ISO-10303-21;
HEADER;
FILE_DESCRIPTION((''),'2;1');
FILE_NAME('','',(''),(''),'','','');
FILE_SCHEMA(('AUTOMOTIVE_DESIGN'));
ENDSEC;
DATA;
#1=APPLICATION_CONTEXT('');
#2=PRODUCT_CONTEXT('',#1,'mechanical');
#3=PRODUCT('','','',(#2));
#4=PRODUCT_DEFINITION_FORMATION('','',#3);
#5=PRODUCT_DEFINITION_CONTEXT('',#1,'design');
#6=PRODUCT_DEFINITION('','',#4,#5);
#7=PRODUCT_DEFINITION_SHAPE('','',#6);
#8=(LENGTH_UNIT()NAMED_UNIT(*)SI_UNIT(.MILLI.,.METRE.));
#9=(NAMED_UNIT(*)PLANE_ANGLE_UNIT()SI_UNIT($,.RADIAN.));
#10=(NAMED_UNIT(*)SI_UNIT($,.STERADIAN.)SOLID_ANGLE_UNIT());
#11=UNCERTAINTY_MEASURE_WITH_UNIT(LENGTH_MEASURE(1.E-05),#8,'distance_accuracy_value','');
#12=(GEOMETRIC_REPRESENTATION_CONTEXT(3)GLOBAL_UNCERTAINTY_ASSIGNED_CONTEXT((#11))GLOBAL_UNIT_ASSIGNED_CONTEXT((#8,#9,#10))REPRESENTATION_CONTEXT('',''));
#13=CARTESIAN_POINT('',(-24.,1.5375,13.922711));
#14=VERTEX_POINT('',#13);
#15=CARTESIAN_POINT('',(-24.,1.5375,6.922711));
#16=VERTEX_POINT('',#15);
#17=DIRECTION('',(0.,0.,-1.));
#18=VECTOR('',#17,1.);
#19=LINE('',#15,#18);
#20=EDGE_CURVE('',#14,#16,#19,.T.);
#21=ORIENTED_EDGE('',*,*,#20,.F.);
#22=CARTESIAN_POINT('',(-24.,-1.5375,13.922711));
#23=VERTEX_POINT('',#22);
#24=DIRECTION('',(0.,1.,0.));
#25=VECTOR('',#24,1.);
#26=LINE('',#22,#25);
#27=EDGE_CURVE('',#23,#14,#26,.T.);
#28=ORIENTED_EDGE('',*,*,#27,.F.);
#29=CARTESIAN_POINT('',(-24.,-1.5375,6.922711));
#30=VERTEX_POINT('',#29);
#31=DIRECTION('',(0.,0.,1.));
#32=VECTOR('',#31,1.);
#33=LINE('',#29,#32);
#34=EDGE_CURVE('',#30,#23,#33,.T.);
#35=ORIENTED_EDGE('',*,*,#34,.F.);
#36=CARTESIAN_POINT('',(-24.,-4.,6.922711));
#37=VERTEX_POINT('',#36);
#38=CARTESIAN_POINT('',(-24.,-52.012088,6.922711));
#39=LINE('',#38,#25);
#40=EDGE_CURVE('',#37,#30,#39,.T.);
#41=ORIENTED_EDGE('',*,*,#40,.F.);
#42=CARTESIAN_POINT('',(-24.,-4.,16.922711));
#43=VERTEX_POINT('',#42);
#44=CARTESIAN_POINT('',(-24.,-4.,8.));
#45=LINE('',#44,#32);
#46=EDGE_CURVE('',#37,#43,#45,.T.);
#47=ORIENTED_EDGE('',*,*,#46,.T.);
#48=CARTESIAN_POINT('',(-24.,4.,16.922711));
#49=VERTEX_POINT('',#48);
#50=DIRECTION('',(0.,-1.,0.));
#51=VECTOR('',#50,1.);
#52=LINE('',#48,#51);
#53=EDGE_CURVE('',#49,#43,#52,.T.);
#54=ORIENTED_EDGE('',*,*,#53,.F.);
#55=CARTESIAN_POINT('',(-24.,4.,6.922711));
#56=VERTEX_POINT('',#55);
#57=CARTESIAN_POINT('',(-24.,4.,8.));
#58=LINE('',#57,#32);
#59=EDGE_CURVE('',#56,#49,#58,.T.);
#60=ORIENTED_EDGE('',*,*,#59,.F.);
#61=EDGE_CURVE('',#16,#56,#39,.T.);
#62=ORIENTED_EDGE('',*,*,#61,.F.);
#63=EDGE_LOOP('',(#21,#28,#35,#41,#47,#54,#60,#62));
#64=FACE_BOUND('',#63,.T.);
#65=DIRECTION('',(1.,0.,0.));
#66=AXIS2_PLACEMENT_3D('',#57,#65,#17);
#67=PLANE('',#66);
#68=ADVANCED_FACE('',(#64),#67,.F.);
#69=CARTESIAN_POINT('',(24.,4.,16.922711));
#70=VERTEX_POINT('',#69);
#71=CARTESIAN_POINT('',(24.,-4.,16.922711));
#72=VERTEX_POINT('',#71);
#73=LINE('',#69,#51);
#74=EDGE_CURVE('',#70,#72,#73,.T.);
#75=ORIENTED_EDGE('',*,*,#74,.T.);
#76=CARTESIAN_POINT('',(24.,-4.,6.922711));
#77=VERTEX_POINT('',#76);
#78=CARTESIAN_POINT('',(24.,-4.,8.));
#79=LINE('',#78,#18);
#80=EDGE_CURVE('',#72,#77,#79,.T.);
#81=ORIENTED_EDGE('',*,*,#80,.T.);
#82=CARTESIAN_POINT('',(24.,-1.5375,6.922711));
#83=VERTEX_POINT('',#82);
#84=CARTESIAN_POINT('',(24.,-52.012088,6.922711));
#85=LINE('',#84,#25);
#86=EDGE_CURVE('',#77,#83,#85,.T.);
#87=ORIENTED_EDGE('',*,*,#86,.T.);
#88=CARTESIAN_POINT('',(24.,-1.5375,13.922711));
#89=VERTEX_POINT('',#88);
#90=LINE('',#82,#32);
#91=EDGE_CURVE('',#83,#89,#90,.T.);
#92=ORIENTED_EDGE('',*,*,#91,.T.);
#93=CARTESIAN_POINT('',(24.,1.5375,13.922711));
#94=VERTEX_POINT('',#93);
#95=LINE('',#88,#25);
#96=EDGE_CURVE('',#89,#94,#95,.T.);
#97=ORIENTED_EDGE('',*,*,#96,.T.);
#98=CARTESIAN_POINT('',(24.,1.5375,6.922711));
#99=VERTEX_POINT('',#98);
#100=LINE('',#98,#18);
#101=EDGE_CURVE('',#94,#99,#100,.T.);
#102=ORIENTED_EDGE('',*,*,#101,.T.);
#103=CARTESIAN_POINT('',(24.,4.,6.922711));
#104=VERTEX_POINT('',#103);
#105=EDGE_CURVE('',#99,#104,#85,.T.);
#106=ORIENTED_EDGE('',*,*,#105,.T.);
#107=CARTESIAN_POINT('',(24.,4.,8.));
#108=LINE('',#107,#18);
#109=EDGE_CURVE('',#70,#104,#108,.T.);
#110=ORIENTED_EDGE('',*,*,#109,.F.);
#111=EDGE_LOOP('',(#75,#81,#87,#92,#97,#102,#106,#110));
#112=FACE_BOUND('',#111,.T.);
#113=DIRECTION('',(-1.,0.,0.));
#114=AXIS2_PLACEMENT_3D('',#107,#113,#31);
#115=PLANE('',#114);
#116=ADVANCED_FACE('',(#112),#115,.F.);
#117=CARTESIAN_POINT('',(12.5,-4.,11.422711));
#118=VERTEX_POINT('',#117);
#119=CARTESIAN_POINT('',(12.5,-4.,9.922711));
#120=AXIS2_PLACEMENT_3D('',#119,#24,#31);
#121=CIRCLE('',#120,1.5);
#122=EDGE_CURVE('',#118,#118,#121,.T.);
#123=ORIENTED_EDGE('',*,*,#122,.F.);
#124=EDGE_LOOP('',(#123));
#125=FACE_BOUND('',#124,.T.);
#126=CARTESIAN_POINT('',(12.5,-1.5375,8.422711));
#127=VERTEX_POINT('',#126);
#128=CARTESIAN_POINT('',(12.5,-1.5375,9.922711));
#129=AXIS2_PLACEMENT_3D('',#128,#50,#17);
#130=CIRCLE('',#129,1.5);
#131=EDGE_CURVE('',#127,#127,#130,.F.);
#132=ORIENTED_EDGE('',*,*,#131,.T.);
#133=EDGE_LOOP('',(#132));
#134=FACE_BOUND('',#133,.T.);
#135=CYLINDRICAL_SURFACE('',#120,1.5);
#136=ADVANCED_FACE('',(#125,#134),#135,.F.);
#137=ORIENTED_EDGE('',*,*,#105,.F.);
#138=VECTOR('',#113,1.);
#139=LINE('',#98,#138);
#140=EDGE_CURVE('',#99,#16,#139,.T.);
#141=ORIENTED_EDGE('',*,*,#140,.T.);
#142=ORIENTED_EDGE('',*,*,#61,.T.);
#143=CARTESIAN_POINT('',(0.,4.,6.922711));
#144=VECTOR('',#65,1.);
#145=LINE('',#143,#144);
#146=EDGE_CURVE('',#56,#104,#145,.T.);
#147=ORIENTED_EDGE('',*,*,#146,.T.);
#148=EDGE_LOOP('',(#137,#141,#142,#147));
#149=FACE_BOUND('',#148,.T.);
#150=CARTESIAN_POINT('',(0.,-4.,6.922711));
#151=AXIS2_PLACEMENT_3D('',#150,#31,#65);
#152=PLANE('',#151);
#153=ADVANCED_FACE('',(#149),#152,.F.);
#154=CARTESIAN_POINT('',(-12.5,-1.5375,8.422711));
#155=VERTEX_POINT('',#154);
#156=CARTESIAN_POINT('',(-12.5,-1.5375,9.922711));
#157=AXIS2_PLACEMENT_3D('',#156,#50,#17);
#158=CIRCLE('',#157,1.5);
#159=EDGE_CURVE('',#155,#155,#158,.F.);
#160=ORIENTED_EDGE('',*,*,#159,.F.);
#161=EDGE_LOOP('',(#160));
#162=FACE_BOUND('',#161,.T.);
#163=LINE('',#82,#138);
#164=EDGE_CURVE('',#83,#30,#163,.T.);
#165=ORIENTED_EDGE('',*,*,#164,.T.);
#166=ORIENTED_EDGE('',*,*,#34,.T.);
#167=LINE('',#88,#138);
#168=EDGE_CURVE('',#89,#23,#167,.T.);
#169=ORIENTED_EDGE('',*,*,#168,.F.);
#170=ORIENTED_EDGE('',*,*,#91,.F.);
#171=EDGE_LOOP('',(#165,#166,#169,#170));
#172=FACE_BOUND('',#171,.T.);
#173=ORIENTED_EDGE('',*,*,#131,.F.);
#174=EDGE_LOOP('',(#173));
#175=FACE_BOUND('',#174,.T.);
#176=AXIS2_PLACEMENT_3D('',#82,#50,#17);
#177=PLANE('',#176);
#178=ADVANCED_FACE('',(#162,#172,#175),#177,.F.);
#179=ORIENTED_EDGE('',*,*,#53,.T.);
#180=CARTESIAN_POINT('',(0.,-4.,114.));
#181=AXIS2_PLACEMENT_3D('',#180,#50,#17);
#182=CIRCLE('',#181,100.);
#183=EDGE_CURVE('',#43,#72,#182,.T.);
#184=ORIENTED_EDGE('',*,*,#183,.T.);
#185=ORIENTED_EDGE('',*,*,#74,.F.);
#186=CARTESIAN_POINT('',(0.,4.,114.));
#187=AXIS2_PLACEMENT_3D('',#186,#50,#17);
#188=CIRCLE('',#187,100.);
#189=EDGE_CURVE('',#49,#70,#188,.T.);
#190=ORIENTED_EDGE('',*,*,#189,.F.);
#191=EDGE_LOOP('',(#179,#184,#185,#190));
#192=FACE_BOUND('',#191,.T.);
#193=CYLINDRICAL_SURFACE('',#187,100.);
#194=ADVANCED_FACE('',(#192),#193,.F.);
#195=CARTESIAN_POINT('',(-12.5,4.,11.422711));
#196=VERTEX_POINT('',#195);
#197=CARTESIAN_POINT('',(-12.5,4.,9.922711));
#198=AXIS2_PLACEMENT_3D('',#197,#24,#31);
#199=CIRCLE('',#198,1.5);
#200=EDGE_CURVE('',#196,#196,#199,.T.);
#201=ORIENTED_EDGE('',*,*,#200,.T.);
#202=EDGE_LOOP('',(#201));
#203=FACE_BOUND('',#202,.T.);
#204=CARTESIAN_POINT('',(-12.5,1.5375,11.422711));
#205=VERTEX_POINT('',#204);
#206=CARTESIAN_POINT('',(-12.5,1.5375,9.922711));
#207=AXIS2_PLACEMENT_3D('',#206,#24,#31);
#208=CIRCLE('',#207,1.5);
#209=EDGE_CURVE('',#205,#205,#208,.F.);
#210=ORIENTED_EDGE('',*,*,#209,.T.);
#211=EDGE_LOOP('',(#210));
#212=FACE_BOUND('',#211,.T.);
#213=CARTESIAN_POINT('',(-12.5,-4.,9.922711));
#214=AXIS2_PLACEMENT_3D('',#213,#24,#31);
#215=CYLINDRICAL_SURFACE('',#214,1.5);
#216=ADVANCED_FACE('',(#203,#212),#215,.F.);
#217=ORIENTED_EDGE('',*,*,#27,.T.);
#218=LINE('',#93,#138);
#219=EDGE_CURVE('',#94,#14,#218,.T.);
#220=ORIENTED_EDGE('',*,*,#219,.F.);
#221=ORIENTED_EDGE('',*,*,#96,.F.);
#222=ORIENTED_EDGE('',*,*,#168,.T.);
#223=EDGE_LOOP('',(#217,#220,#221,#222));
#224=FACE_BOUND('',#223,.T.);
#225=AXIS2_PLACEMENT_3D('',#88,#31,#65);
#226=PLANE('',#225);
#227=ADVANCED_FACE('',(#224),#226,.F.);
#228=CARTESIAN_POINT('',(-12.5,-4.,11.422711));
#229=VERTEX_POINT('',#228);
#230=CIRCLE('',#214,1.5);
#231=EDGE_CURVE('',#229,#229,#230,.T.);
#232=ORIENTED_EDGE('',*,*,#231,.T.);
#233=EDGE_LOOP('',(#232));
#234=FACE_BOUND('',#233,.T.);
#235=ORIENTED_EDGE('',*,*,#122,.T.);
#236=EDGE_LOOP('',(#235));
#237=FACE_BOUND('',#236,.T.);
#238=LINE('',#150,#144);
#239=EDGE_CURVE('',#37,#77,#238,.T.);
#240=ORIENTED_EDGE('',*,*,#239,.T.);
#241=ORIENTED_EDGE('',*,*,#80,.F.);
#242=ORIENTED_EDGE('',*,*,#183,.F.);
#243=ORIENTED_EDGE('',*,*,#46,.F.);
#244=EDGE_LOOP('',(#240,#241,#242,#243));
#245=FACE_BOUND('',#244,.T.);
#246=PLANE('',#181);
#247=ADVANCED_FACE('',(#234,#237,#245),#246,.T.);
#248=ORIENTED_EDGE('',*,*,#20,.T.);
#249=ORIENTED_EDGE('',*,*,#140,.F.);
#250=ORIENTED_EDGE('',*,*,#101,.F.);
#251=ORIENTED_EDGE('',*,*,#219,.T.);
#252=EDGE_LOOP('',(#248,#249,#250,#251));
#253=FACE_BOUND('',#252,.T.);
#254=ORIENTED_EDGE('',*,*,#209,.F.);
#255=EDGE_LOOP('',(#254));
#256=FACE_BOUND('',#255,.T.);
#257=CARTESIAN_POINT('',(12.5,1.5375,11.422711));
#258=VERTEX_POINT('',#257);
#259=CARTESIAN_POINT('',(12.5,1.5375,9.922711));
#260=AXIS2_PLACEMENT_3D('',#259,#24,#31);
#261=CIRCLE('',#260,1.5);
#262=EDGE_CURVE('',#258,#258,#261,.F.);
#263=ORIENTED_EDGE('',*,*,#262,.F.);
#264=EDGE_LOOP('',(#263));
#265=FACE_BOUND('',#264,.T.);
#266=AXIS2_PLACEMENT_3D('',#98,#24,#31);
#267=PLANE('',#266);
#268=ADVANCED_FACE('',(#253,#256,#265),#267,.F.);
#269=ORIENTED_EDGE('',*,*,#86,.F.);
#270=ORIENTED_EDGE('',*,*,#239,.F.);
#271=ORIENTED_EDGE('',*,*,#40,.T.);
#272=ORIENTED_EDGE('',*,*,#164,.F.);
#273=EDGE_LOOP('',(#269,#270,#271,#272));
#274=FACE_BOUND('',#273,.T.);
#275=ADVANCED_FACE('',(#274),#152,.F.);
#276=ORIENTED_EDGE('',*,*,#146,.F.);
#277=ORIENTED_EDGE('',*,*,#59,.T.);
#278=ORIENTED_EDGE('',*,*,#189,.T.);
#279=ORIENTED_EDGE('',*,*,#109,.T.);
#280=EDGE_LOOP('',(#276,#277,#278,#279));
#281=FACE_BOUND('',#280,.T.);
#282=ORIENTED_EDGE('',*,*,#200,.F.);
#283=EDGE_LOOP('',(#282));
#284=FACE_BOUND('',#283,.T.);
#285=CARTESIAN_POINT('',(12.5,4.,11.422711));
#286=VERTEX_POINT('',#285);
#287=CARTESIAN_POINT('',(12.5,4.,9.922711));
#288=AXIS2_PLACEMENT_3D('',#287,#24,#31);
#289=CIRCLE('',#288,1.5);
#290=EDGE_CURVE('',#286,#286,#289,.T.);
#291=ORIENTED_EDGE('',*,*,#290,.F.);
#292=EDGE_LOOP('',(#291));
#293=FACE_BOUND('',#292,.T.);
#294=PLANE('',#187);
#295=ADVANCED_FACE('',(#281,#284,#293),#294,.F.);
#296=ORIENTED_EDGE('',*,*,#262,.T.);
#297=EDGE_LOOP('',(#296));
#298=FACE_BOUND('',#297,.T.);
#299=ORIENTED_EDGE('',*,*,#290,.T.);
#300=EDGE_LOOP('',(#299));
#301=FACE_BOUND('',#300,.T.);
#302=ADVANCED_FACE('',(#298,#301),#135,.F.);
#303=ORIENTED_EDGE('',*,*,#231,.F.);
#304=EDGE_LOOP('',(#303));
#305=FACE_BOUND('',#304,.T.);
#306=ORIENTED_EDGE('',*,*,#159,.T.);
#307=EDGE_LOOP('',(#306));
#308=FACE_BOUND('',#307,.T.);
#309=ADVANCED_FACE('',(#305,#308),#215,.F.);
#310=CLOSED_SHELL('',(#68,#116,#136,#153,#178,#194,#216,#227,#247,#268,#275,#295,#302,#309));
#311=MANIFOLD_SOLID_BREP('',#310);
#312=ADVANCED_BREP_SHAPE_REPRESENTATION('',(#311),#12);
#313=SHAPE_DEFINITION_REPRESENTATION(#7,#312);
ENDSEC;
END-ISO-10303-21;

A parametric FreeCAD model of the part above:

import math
import FreeCAD as App
import Part
import Sketcher


def add_polygon(sketch, points):
    """Adds a closed chain of lines whose ends are joined by coincident constraints."""
    first, n = sketch.GeometryCount, len(points)
    for a, b in zip(points, points[1:] + points[:1]):
        sketch.addGeometry(Part.LineSegment(App.Vector(*a, 0), App.Vector(*b, 0)), False)
    for i in range(n):
        sketch.addConstraint(Sketcher.Constraint("Coincident", first + i, 2, first + (i + 1) % n, 1))

doc = App.newDocument("Part")
body = doc.addObject("PartDesign::Body", "Body")

# Sketch on XZ plane
sketch1 = body.newObject("Sketcher::SketchObject", "Sketch")
sketch1.AttachmentSupport = (doc.getObject("XZ_Plane"), [""])
sketch1.MapMode = "FlatFace"
sketch1.addGeometry([
    Part.LineSegment(App.Vector(20, 0, 0), App.Vector(-20, 0, 0)),  # 0
    Part.LineSegment(App.Vector(-20, 0, 0), App.Vector(-20, 8, 0)),  # 1
    Part.LineSegment(App.Vector(-20, 8, 0), App.Vector(-24, 8, 0)),  # 2
    Part.LineSegment(App.Vector(-24, 8, 0), App.Vector(-24, 16.9, 0)),  # 3
    Part.ArcOfCircle(Part.Circle(App.Vector(0, 114, 0), App.Vector(0, 0, 1), 100), math.radians(-104), math.radians(-76)),  # 4
    Part.LineSegment(App.Vector(24, 16.9, 0), App.Vector(24, 8, 0)),  # 5
    Part.LineSegment(App.Vector(24, 8, 0), App.Vector(20, 8, 0)),  # 6
    Part.LineSegment(App.Vector(20, 8, 0), App.Vector(20, 0, 0)),  # 7
], False)
sketch1.addConstraint([
    Sketcher.Constraint("Coincident", 0, 2, 1, 1),
    Sketcher.Constraint("Coincident", 1, 2, 2, 1),
    Sketcher.Constraint("Coincident", 2, 2, 3, 1),
    Sketcher.Constraint("Coincident", 3, 2, 4, 1),
    Sketcher.Constraint("Coincident", 4, 2, 5, 1),
    Sketcher.Constraint("Coincident", 5, 2, 6, 1),
    Sketcher.Constraint("Coincident", 6, 2, 7, 1),
    Sketcher.Constraint("Coincident", 7, 2, 0, 1),
    Sketcher.Constraint("Horizontal", 0),
    Sketcher.Constraint("Vertical", 1),
    Sketcher.Constraint("Horizontal", 2),
    Sketcher.Constraint("Vertical", 3),
    Sketcher.Constraint("Vertical", 5),
    Sketcher.Constraint("Horizontal", 6),
    Sketcher.Constraint("Vertical", 7),
    Sketcher.Constraint("Symmetric", 0, 2, 7, 2, -1, 1),
    Sketcher.Constraint("Symmetric", 3, 2, 4, 2, -2),
    Sketcher.Constraint("Horizontal", 2, 2, 5, 2),
    Sketcher.Constraint("Radius", 4, 100.0),
    Sketcher.Constraint("DistanceX", 0, 2, 0, 1, 40.0),
    Sketcher.Constraint("DistanceX", 2, 2, 2, 1, 4.0),
    Sketcher.Constraint("DistanceY", 1, 1, 1, 2, 8.0),
    Sketcher.Constraint("DistanceY", -1, 1, 4, 3, 114.0),
])
pad1 = body.newObject("PartDesign::Pad", "Pad")
pad1.Profile = sketch1
pad1.Length = 8
pad1.Midplane = True

# Sketch on XZ plane
sketch2 = body.newObject("Sketcher::SketchObject", "Sketch001")
sketch2.AttachmentSupport = (doc.getObject("XZ_Plane"), [""])
sketch2.MapMode = "FlatFace"
sketch2.AttachmentOffset = App.Placement(App.Vector(0, 0, -4), App.Rotation())
sketch2.addGeometry(Part.Circle(App.Vector(-12.5, 9.9, 0), App.Vector(0, 0, 1), 1.5), False)  # 0
sketch2.addGeometry(Part.Circle(App.Vector(12.5, 9.9, 0), App.Vector(0, 0, 1), 1.5), False)  # 1
add_polygon(sketch2, [(-20, 0), (-20, 6.9), (20, 6.9), (20, 0)])  # lines 2-5
sketch2.addConstraint([
    Sketcher.Constraint("Vertical", 2),
    Sketcher.Constraint("Horizontal", 3),
    Sketcher.Constraint("Vertical", 4),
    Sketcher.Constraint("Horizontal", 5),
    Sketcher.Constraint("Equal", 0, 1),
    Sketcher.Constraint("Symmetric", 4, 2, 5, 2, -1, 1),
    Sketcher.Constraint("Symmetric", 0, 3, 1, 3, -2),
    Sketcher.Constraint("Diameter", 0, 3.0),
    Sketcher.Constraint("DistanceX", 3, 1, 3, 2, 40.0),
    Sketcher.Constraint("DistanceX", 0, 3, 1, 3, 25.0),
    Sketcher.Constraint("DistanceY", 2, 2, 0, 3, 3.0),
    Sketcher.Constraint("DistanceY", 2, 1, 2, 2, 6.922711),
])
pocket1 = body.newObject("PartDesign::Pocket", "Pocket")
pocket1.Profile = sketch2
pocket1.Type = "ThroughAll"
pocket1.Reversed = True

# Sketch on XZ plane
sketch3 = body.newObject("Sketcher::SketchObject", "Sketch002")
sketch3.AttachmentSupport = (doc.getObject("XZ_Plane"), [""])
sketch3.MapMode = "FlatFace"
sketch3.AttachmentOffset = App.Placement(App.Vector(0, 0, -4), App.Rotation())
add_polygon(sketch3, [(-24, 6.9), (-24, 8), (24, 8), (24, 6.9)])  # lines 0-3
sketch3.addConstraint([
    Sketcher.Constraint("Vertical", 0),
    Sketcher.Constraint("Horizontal", 1),
    Sketcher.Constraint("Vertical", 2),
    Sketcher.Constraint("Horizontal", 3),
    Sketcher.Constraint("DistanceX", 1, 1, 1, 2, 48.0),
    Sketcher.Constraint("DistanceX", 0, 2, -1, 1, 24.0),
    Sketcher.Constraint("DistanceY", -1, 1, 0, 2, 8.0),
    Sketcher.Constraint("DistanceY", 0, 1, 0, 2, 1.077289),
])
pad2 = body.newObject("PartDesign::Pad", "Pad001")
pad2.Profile = sketch3
pad2.Length = 8

# Sketch on YZ plane
sketch4 = body.newObject("Sketcher::SketchObject", "Sketch003")
sketch4.AttachmentSupport = (doc.getObject("YZ_Plane"), [""])
sketch4.MapMode = "FlatFace"
sketch4.AttachmentOffset = App.Placement(App.Vector(0, 0, -24), App.Rotation())
add_polygon(sketch4, [(1.5, 6.9), (-1.5, 6.9), (-1.5, 13.9), (1.5, 13.9)])  # lines 0-3
sketch4.addConstraint([
    Sketcher.Constraint("Horizontal", 0),
    Sketcher.Constraint("Vertical", 1),
    Sketcher.Constraint("Horizontal", 2),
    Sketcher.Constraint("Vertical", 3),
    Sketcher.Constraint("DistanceY", 1, 1, 1, 2, 7.0),
    Sketcher.Constraint("DistanceX", 0, 2, 0, 1, 3.075),
    Sketcher.Constraint("DistanceX", 0, 2, -1, 1, 1.5375),
    Sketcher.Constraint("DistanceY", -1, 1, 0, 2, 6.922711),
])
pocket2 = body.newObject("PartDesign::Pocket", "Pocket001")
pocket2.Profile = sketch4
pocket2.Type = "ThroughAll"
pocket2.Reversed = True

doc.recompute()
